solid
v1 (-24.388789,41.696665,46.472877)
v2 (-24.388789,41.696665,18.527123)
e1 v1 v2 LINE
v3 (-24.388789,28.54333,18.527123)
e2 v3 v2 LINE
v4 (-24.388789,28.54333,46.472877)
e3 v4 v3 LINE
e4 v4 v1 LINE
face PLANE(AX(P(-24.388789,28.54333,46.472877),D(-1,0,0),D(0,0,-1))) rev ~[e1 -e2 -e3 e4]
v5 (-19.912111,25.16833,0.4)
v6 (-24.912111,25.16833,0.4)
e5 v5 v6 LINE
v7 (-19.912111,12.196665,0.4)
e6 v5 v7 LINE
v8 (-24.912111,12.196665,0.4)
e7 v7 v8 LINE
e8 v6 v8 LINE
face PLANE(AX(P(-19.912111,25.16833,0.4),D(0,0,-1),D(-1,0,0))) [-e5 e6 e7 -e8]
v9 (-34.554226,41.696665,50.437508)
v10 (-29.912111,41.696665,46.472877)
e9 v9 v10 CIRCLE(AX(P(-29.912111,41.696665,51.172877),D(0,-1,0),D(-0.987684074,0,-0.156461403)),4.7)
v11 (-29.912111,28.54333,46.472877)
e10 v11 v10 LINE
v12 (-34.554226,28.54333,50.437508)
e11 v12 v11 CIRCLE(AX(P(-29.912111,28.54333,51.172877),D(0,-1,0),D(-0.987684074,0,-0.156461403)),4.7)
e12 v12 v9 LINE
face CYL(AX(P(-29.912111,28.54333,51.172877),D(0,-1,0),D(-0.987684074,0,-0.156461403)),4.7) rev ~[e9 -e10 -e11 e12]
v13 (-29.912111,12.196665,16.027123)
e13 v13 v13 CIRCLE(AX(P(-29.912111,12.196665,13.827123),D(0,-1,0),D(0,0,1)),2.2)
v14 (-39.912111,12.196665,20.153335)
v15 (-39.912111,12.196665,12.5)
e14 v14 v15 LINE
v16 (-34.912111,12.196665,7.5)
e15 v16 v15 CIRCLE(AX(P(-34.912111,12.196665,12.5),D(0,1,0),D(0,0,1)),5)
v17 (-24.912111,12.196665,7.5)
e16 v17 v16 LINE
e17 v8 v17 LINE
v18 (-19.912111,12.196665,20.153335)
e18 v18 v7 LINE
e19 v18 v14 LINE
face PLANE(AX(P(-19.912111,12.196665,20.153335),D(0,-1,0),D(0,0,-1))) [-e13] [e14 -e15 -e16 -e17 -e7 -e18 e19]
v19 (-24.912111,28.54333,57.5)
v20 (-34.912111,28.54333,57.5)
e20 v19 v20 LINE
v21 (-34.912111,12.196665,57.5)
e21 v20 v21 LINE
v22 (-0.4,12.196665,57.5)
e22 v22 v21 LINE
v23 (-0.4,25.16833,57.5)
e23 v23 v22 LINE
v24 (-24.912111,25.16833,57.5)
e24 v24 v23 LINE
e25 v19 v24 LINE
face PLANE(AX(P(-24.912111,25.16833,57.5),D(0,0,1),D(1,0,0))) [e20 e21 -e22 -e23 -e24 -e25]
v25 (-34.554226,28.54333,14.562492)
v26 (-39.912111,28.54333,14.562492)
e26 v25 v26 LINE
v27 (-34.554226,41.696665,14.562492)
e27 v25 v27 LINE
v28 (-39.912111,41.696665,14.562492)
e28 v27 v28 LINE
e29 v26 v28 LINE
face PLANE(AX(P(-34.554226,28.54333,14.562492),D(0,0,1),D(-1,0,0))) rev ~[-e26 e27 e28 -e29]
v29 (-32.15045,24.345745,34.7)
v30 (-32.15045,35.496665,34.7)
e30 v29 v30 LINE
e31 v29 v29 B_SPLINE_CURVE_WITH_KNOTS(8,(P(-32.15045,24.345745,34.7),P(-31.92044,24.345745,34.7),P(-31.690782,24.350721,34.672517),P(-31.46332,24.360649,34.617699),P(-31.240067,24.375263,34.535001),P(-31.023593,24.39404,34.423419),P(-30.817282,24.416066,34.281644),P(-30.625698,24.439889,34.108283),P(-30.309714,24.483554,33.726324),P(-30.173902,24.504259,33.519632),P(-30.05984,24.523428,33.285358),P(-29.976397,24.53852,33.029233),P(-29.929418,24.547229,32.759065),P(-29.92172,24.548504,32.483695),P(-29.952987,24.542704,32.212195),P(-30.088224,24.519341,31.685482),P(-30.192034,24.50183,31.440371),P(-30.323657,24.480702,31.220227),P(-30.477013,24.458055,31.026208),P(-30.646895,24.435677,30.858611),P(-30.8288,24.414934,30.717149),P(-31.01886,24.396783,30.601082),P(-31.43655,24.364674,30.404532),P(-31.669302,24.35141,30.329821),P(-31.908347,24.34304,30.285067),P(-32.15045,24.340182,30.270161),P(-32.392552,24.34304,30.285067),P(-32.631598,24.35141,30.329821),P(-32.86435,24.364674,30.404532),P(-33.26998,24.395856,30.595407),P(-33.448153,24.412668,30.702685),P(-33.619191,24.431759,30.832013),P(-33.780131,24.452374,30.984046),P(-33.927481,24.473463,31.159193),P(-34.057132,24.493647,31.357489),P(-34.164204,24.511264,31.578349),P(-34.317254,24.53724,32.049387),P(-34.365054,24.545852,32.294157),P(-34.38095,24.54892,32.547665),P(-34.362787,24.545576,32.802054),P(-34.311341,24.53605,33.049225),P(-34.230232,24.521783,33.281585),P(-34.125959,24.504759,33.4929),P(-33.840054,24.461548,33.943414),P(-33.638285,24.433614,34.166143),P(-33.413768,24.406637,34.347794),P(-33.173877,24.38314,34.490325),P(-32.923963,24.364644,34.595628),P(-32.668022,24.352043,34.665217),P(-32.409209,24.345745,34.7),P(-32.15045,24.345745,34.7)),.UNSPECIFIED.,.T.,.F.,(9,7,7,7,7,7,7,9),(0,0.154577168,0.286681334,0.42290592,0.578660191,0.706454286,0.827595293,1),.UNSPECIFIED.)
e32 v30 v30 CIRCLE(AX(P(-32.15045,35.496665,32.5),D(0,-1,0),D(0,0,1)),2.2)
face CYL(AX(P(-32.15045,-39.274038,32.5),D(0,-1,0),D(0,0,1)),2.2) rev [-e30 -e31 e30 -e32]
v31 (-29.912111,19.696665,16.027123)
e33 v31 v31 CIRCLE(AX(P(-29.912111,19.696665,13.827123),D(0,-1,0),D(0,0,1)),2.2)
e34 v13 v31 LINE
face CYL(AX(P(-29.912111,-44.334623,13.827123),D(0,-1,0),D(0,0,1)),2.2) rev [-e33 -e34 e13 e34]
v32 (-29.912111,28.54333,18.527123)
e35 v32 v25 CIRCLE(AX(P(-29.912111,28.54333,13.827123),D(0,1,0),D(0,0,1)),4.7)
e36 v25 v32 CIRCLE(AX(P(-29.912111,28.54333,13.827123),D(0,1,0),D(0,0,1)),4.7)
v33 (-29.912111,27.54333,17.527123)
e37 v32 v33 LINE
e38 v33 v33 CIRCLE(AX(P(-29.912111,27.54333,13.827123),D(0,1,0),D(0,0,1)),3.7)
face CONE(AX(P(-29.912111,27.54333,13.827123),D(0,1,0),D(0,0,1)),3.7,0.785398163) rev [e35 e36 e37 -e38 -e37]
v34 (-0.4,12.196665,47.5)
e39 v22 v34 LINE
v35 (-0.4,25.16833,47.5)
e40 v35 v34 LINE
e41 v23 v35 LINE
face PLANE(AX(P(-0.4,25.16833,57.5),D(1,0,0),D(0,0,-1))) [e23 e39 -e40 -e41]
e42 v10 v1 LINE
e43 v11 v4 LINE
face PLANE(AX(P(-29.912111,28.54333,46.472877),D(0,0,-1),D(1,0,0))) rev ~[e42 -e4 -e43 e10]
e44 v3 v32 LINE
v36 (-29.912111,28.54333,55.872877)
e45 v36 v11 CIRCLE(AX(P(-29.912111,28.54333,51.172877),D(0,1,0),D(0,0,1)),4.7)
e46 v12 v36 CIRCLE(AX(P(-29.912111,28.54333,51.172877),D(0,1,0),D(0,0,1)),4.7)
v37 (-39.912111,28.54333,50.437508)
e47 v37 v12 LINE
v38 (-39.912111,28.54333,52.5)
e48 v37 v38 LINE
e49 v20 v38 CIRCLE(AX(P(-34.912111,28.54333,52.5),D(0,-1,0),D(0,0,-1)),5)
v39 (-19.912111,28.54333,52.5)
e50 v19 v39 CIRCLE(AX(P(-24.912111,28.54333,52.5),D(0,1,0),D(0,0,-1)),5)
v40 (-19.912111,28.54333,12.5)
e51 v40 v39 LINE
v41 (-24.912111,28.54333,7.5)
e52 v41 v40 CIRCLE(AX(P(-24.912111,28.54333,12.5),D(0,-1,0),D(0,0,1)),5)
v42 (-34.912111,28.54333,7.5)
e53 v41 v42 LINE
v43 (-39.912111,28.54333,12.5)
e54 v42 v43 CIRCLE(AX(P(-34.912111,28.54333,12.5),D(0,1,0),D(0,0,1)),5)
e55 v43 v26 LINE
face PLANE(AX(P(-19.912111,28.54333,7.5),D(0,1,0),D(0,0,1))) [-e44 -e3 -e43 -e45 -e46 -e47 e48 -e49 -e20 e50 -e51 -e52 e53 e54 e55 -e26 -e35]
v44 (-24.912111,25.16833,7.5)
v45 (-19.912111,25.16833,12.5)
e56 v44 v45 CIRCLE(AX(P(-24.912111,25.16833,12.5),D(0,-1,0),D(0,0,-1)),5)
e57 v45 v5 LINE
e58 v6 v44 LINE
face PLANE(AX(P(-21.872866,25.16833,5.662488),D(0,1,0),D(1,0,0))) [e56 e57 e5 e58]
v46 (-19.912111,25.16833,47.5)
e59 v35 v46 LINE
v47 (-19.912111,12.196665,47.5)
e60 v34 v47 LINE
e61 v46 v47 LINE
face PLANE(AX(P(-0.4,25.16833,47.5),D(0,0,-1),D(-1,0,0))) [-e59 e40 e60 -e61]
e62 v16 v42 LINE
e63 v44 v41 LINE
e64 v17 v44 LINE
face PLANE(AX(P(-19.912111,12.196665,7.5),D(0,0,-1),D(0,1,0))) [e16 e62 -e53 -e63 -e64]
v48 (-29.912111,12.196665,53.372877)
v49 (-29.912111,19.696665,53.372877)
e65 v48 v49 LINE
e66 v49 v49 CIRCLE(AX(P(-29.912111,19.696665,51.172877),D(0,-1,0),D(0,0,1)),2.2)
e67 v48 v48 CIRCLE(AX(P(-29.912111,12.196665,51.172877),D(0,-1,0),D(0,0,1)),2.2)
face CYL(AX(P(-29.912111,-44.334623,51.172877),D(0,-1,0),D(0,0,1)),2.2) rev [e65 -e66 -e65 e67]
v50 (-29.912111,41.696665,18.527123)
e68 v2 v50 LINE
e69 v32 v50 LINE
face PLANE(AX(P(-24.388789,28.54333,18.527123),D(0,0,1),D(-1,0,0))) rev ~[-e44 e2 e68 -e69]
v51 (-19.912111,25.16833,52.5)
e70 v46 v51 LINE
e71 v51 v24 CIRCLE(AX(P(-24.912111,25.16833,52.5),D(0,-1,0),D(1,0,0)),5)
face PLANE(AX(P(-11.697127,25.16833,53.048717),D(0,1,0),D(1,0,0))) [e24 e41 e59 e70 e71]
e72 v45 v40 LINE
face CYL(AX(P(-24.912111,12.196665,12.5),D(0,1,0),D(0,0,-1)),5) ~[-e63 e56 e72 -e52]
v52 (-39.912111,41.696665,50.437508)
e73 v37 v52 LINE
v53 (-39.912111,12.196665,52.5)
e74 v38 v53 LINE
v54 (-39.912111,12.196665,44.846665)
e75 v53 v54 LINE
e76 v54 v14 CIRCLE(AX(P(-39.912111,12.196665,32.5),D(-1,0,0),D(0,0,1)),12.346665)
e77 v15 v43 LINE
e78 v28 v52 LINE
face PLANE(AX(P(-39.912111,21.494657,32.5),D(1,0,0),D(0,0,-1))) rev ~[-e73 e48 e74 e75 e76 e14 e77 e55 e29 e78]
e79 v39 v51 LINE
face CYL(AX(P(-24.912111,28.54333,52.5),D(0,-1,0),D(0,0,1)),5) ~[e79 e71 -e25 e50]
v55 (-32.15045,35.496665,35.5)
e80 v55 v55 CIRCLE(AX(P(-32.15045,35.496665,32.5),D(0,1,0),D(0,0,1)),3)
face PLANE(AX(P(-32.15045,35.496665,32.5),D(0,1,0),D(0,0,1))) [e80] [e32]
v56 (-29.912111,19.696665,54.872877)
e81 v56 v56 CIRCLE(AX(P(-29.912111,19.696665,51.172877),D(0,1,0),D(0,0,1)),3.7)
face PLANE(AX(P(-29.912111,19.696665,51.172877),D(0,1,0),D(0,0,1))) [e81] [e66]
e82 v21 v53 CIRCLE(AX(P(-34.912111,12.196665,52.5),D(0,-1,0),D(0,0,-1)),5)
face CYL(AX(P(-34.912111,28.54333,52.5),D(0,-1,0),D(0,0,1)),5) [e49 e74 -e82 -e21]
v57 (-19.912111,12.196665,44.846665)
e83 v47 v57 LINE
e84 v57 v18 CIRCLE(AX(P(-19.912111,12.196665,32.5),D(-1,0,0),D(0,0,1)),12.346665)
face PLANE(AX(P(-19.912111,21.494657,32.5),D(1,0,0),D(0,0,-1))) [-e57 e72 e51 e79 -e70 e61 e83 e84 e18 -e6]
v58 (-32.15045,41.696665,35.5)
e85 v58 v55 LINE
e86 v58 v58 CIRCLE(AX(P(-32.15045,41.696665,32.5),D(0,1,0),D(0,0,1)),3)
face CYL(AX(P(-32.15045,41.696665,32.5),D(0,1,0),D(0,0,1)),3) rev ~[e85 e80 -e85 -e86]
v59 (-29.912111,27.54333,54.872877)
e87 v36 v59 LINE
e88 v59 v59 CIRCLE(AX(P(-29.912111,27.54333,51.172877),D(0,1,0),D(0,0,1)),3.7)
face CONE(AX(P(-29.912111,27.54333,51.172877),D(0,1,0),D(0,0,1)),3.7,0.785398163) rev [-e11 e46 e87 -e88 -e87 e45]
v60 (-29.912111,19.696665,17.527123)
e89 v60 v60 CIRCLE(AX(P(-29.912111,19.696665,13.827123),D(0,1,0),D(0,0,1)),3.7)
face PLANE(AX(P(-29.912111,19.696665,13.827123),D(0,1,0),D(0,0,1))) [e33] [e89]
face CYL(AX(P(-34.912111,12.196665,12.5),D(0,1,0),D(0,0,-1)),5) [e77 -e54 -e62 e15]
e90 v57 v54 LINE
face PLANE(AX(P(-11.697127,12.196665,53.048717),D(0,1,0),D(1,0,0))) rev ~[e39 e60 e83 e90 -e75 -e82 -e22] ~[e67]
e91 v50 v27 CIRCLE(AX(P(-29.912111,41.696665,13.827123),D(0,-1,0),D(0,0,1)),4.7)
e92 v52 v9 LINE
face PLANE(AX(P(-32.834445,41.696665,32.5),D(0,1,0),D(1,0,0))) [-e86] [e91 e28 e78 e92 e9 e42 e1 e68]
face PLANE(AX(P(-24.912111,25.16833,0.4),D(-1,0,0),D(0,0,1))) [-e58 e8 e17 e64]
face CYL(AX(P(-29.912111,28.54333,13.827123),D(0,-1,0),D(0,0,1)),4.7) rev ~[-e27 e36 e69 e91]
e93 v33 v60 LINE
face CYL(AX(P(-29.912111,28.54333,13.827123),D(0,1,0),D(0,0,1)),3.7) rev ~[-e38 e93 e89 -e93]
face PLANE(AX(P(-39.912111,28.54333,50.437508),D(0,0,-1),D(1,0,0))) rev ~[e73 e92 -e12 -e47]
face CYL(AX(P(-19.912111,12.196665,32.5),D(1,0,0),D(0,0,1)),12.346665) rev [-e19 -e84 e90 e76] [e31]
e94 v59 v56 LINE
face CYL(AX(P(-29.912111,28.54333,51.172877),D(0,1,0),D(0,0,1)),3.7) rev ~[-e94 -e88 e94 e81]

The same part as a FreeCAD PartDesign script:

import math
import FreeCAD as App
import Part
import Sketcher

V = App.Vector
Q = App.Units.Quantity


def edges_at(feature, points):
    """Names of the edges that pass closest to the given points."""
    edges = feature.Shape.Edges
    near = lambda p: min(range(len(edges)), key=lambda i: edges[i].distToShape(Part.Vertex(*p))[0])
    return sorted({f"Edge{near(p) + 1}" for p in points})

doc = App.newDocument("Part")
body = doc.addObject("PartDesign::Body", "Body")

sketch1 = body.newObject("Sketcher::SketchObject", "Sketch")
sketch1.AttachmentSupport = (doc.getObject("YZ_Plane"), [""])
sketch1.MapMode = "FlatFace"
sketch1.AttachmentOffset = App.Placement(V(0, 0, -19.912111), App.Rotation())
sketch1.addGeometry([
    Part.ArcOfCircle(Part.Circle(V(12, 32, 0), V(0, 0, 1), 12), math.radians(-90), math.radians(90)),
    Part.LineSegment(V(12, 20, 0), V(12, 8, 0)),
    Part.LineSegment(V(12, 8, 0), V(29, 8, 0)),
    Part.LineSegment(V(29, 8, 0), V(29, 58, 0)),
    Part.LineSegment(V(29, 58, 0), V(12, 58, 0)),
    Part.LineSegment(V(12, 58, 0), V(12, 45, 0)),
], False)
sketch1.addConstraint([
    Sketcher.Constraint("Coincident", 0, 1, 1, 1),
    Sketcher.Constraint("Coincident", 1, 2, 2, 1),
    Sketcher.Constraint("Coincident", 2, 2, 3, 1),
    Sketcher.Constraint("Coincident", 3, 2, 4, 1),
    Sketcher.Constraint("Coincident", 4, 2, 5, 1),
    Sketcher.Constraint("Coincident", 5, 2, 0, 2),
    Sketcher.Constraint("Vertical", 1),
    Sketcher.Constraint("Horizontal", 2),
    Sketcher.Constraint("Vertical", 3),
    Sketcher.Constraint("Horizontal", 4),
    Sketcher.Constraint("Vertical", 5),
    Sketcher.Constraint("Vertical", 1, 2, 4, 2),
    Sketcher.Constraint("Equal", 1, 5),
    Sketcher.Constraint("DistanceY", 3, 1, 3, 2, Q("50 mm")),
    Sketcher.Constraint("DistanceY", -1, 1, 0, 3, Q("32.5 mm")),
    Sketcher.Constraint("Radius", 0, Q("12.346665 mm")),
    Sketcher.Constraint("DistanceX", 2, 1, 2, 2, Q("16.346665 mm")),
    Sketcher.Constraint("DistanceX", -1, 1, 2, 2, Q("28.54333 mm")),
    Sketcher.Constraint("DistanceX", -1, 1, 0, 3, Q("12.196665 mm")),
])
pad1 = body.newObject("PartDesign::Pad", "Pad")
pad1.Profile = sketch1
pad1.Length = 20
pad1.Reversed = True
doc.recompute()

fillet = body.newObject("PartDesign::Fillet", "Fillet")
fillet.Base = (pad1, edges_at(pad1, [
    (-39.912, 20.37, 7.5),
    (-39.912, 20.37, 57.5),
    (-19.912, 20.37, 57.5),
    (-19.912, 20.37, 7.5),
]))
fillet.Radius = 5

sketch2 = body.newObject("Sketcher::SketchObject", "Sketch001")
sketch2.AttachmentSupport = (doc.getObject("XZ_Plane"), [""])
sketch2.MapMode = "FlatFace"
sketch2.AttachmentOffset = App.Placement(V(0, 0, -28.54333), App.Rotation())
sketch2.addGeometry([
    Part.Circle(V(-29.9, 51.2, 0), V(0, 0, 1), 2.2),
    Part.Circle(V(-29.9, 13.8, 0), V(0, 0, 1), 2.2),
], False)
sketch2.addConstraint([
    Sketcher.Constraint("Equal", 0, 1),
    Sketcher.Constraint("Vertical", 0, 3, 1, 3),
    Sketcher.Constraint("Diameter", 0, Q("4.4 mm")),
    Sketcher.Constraint("DistanceX", 0, 3, -1, 1, Q("29.912111 mm")),
    Sketcher.Constraint("DistanceY", -1, 1, 0, 3, Q("51.172877 mm")),
    Sketcher.Constraint("DistanceY", -1, 1, 1, 3, Q("13.827123 mm")),
])
pocket1 = body.newObject("PartDesign::Pocket", "Pocket")
pocket1.Profile = sketch2
pocket1.Type = "ThroughAll"
pocket1.Midplane = True

sketch3 = body.newObject("Sketcher::SketchObject", "Sketch002")
sketch3.AttachmentSupport = (doc.getObject("XZ_Plane"), [""])
sketch3.MapMode = "FlatFace"
sketch3.AttachmentOffset = App.Placement(V(0, 0, -28.54333), App.Rotation())
sketch3.addGeometry([
    Part.Circle(V(-29.9, 51.2, 0), V(0, 0, 1), 3.7),
    Part.Circle(V(-29.9, 13.8, 0), V(0, 0, 1), 3.7),
], False)
sketch3.addConstraint([
    Sketcher.Constraint("Equal", 0, 1),
    Sketcher.Constraint("Vertical", 0, 3, 1, 3),
    Sketcher.Constraint("Diameter", 0, Q("7.4 mm")),
    Sketcher.Constraint("DistanceX", 0, 3, -1, 1, Q("29.912111 mm")),
    Sketcher.Constraint("DistanceY", -1, 1, 0, 3, Q("51.172877 mm")),
    Sketcher.Constraint("DistanceY", -1, 1, 1, 3, Q("13.827123 mm")),
])
pocket2 = body.newObject("PartDesign::Pocket", "Pocket001")
pocket2.Profile = sketch3
pocket2.Length = 8.846665
pocket2.Reversed = True
doc.recompute()

chamfer = body.newObject("PartDesign::Chamfer", "Chamfer")
chamfer.Base = (pocket2, edges_at(pocket2, [(-29.912, 28.543, 47.473), (-29.912, 28.543, 10.127)]))
chamfer.Size = 1

sketch4 = body.newObject("Sketcher::SketchObject", "Sketch003")
sketch4.AttachmentSupport = (doc.getObject("XZ_Plane"), [""])
sketch4.MapMode = "FlatFace"
sketch4.AttachmentOffset = App.Placement(V(0, 0, -25.16833), App.Rotation())
sketch4.addGeometry([
    Part.LineSegment(V(0, 48, 0), V(-20, 48, 0)),
    Part.LineSegment(V(-20, 48, 0), V(-20, 52, 0)),
    Part.ArcOfCircle(Part.Circle(V(-25, 52, 0), V(0, 0, 1), 5), math.radians(0), math.radians(90)),
    Part.LineSegment(V(-25, 58, 0), V(0, 58, 0)),
    Part.LineSegment(V(0, 58, 0), V(0, 48, 0)),
    Part.LineSegment(V(-20, 0, 0), V(-25, 0, 0)),
    Part.LineSegment(V(-25, 0, 0), V(-25, 8, 0)),
    Part.ArcOfCircle(Part.Circle(V(-25, 12, 0), V(0, 0, 1), 5), math.radians(-90), math.radians(0)),
    Part.LineSegment(V(-20, 12, 0), V(-20, 0, 0)),
], False)
sketch4.addConstraint([
    Sketcher.Constraint("Coincident", 0, 2, 1, 1),
    Sketcher.Constraint("Tangent", 1, 2, 2, 1),
    Sketcher.Constraint("Tangent", 2, 2, 3, 1),
    Sketcher.Constraint("Coincident", 3, 2, 4, 1),
    Sketcher.Constraint("Coincident", 4, 2, 0, 1),
    Sketcher.Constraint("Coincident", 5, 2, 6, 1),
    Sketcher.Constraint("Coincident", 6, 2, 7, 1),
    Sketcher.Constraint("Tangent", 7, 2, 8, 1),
    Sketcher.Constraint("Coincident", 8, 2, 5, 1),
    Sketcher.Constraint("Horizontal", 0),
    Sketcher.Constraint("Vertical", 1),
    Sketcher.Constraint("Horizontal", 3),
    Sketcher.Constraint("Vertical", 4),
    Sketcher.Constraint("Horizontal", 5),
    Sketcher.Constraint("Vertical", 6),
    Sketcher.Constraint("Vertical", 8),
    Sketcher.Constraint("Equal", 2, 7),
    Sketcher.Constraint("Vertical", 2, 3, 7, 3),
    Sketcher.Constraint("Vertical", 2, 2, 5, 2),
    Sketcher.Constraint("Equal", 5, 1),
    Sketcher.Constraint("Radius", 2, Q("5 mm")),
    Sketcher.Constraint("DistanceY", 6, 1, 6, 2, Q("7.1 mm")),
    Sketcher.Constraint("DistanceY", 7, 3, 2, 3, Q("40 mm")),
    Sketcher.Constraint("DistanceY", -1, 1, 2, 3, Q("52.5 mm")),
    Sketcher.Constraint("DistanceX", 3, 2, -1, 1, Q("0.4 mm")),
    Sketcher.Constraint("DistanceX", 0, 2, 0, 1, Q("19.512111 mm")),
])
pad2 = body.newObject("PartDesign::Pad", "Pad001")
pad2.Profile = sketch4
pad2.Length = 12.971665

sketch5 = body.newObject("Sketcher::SketchObject", "Sketch004")
sketch5.AttachmentSupport = (doc.getObject("XZ_Plane"), [""])
sketch5.MapMode = "FlatFace"
sketch5.AttachmentOffset = App.Placement(V(0, 0, -28.54333), App.Rotation())
sketch5.addGeometry([
    Part.LineSegment(V(-29.9, 46.5, 0), V(-24.4, 46.5, 0)),
    Part.LineSegment(V(-24.4, 46.5, 0), V(-24.4, 18.5, 0)),
    Part.LineSegment(V(-24.4, 18.5, 0), V(-29.9, 18.5, 0)),
    Part.ArcOfCircle(Part.Circle(V(-29.9, 13.8, 0), V(0, 0, 1), 4.7), math.radians(90), math.radians(171)),
    Part.LineSegment(V(-34.6, 14.6, 0), V(-39.9, 14.6, 0)),
    Part.LineSegment(V(-39.9, 14.6, 0), V(-39.9, 50.4, 0)),
    Part.LineSegment(V(-39.9, 50.4, 0), V(-34.6, 50.4, 0)),
    Part.ArcOfCircle(Part.Circle(V(-29.9, 51.2, 0), V(0, 0, 1), 4.7), math.radians(-171), math.radians(-90)),
], False)
sketch5.addConstraint([
    Sketcher.Constraint("Coincident", 0, 2, 1, 1),
    Sketcher.Constraint("Coincident", 1, 2, 2, 1),
    Sketcher.Constraint("Tangent", 2, 2, 3, 1),
    Sketcher.Constraint("Coincident", 3, 2, 4, 1),
    Sketcher.Constraint("Coincident", 4, 2, 5, 1),
    Sketcher.Constraint("Coincident", 5, 2, 6, 1),
    Sketcher.Constraint("Coincident", 6, 2, 7, 1),
    Sketcher.Constraint("Tangent", 7, 2, 0, 1),
    Sketcher.Constraint("Horizontal", 0),
    Sketcher.Constraint("Vertical", 1),
    Sketcher.Constraint("Horizontal", 2),
    Sketcher.Constraint("Horizontal", 4),
    Sketcher.Constraint("Vertical", 5),
    Sketcher.Constraint("Horizontal", 6),
    Sketcher.Constraint("Equal", 3, 7),
    Sketcher.Constraint("Vertical", 3, 3, 7, 3),
    Sketcher.Constraint("Vertical", 3, 2, 6, 2),
    Sketcher.Constraint("Radius", 3, Q("4.7 mm")),
    Sketcher.Constraint("DistanceX", 4, 2, 3, 3, Q("10 mm")),
    Sketcher.Constraint("DistanceX", 0, 1, 0, 2, Q("5.523322 mm")),
    Sketcher.Constraint("DistanceX", 4, 2, 4, 1, Q("5.357885 mm")),
    Sketcher.Constraint("DistanceY", 1, 2, 1, 1, Q("27.945754 mm")),
    Sketcher.Constraint("DistanceX", 3, 3, -1, 1, Q("29.912111 mm")),
    Sketcher.Constraint("DistanceY", -1, 1, 3, 2, Q("14.562492 mm")),
])
pad3 = body.newObject("PartDesign::Pad", "Pad002")
pad3.Profile = sketch5
pad3.Length = 13.153335
pad3.Reversed = True

sketch6 = body.newObject("Sketcher::SketchObject", "Sketch005")
sketch6.AttachmentSupport = (doc.getObject("XZ_Plane"), [""])
sketch6.MapMode = "FlatFace"
sketch6.AttachmentOffset = App.Placement(V(0, 0, -41.696665), App.Rotation())
sketch6.addGeometry(Part.Circle(V(-32.2, 32.5, 0), V(0, 0, 1), 3), False)
sketch6.addConstraint([
    Sketcher.Constraint("Diameter", 0, Q("6 mm")),
    Sketcher.Constraint("DistanceY", -1, 1, 0, 3, Q("32.5 mm")),
    Sketcher.Constraint("DistanceX", 0, 3, -1, 1, Q("32.15045 mm")),
])
pocket3 = body.newObject("PartDesign::Pocket", "Pocket002")
pocket3.Profile = sketch6
pocket3.Length = 6.2
pocket3.Reversed = True

sketch7 = body.newObject("Sketcher::SketchObject", "Sketch006")
sketch7.AttachmentSupport = (doc.getObject("XZ_Plane"), [""])
sketch7.MapMode = "FlatFace"
sketch7.AttachmentOffset = App.Placement(V(0, 0, -35.496665), App.Rotation())
sketch7.addGeometry(Part.Circle(V(-32.2, 32.5, 0), V(0, 0, 1), 2.2), False)
sketch7.addConstraint([
    Sketcher.Constraint("Diameter", 0, Q("4.4 mm")),
    Sketcher.Constraint("DistanceY", -1, 1, 0, 3, Q("32.5 mm")),
    Sketcher.Constraint("DistanceX", 0, 3, -1, 1, Q("32.15045 mm")),
])
pocket4 = body.newObject("PartDesign::Pocket", "Pocket003")
pocket4.Profile = sketch7
pocket4.Type = "ThroughAll"
pocket4.Midplane = True

doc.recompute()
